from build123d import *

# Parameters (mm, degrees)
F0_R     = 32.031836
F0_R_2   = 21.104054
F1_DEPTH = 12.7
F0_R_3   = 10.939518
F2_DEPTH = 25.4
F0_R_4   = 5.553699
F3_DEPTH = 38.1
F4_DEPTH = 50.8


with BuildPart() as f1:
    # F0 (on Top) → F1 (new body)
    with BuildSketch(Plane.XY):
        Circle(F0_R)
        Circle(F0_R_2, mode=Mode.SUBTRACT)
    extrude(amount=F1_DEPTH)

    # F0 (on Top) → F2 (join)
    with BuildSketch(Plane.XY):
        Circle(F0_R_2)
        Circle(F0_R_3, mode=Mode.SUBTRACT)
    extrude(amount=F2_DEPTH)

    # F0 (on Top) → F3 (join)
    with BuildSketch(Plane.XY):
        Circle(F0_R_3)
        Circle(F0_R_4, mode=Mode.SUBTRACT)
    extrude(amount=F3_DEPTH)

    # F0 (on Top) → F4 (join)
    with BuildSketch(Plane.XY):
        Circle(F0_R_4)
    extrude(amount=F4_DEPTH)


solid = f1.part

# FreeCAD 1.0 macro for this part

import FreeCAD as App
import Part
import Sketcher
Q = App.Units.Quantity

doc = App.newDocument("Part")
body = doc.addObject("PartDesign::Body", "Body")

# Sketch on XY plane
sketch1 = doc.addObject("Sketcher::SketchObject", "Sketch")
body.addObject(sketch1)
sketch1.AttachmentSupport = (doc.XY_Plane, [""])
sketch1.MapMode = "FlatFace"
sketch1.addGeometry(Part.Circle(App.Vector(0, 0, 0), App.Vector(0, 0, 1), 32), False)
sketch1.addGeometry(Part.Circle(App.Vector(0, 0, 0), App.Vector(0, 0, 1), 21), False)
sketch1.addConstraint(Sketcher.Constraint("Coincident", 0, 3, -1, 1))
sketch1.addConstraint(Sketcher.Constraint("Coincident", 1, 3, -1, 1))
sketch1.addConstraint(Sketcher.Constraint("Diameter", 0, 64.063672))
sketch1.addConstraint(Sketcher.Constraint("Diameter", 1, 42.208108))
pad1 = doc.addObject("PartDesign::Pad", "Pad")
body.addObject(pad1)
pad1.Profile = sketch1
pad1.Length = Q("0.5 in")

# Sketch on XY plane
sketch2 = doc.addObject("Sketcher::SketchObject", "Sketch001")
body.addObject(sketch2)
sketch2.AttachmentSupport = (doc.XY_Plane, [""])
sketch2.MapMode = "FlatFace"
sketch2.addGeometry(Part.Circle(App.Vector(0, 0, 0), App.Vector(0, 0, 1), 21), False)
sketch2.addGeometry(Part.Circle(App.Vector(0, 0, 0), App.Vector(0, 0, 1), 11), False)
sketch2.addConstraint(Sketcher.Constraint("Coincident", 0, 3, -1, 1))
sketch2.addConstraint(Sketcher.Constraint("Coincident", 1, 3, -1, 1))
sketch2.addConstraint(Sketcher.Constraint("Diameter", 0, 42.208108))
sketch2.addConstraint(Sketcher.Constraint("Diameter", 1, 21.879036))
pad2 = doc.addObject("PartDesign::Pad", "Pad001")
body.addObject(pad2)
pad2.Profile = sketch2
pad2.Length = Q("1 in")

# Sketch on XY plane
sketch3 = doc.addObject("Sketcher::SketchObject", "Sketch002")
body.addObject(sketch3)
sketch3.AttachmentSupport = (doc.XY_Plane, [""])
sketch3.MapMode = "FlatFace"
sketch3.addGeometry(Part.Circle(App.Vector(0, 0, 0), App.Vector(0, 0, 1), 11), False)
sketch3.addGeometry(Part.Circle(App.Vector(0, 0, 0), App.Vector(0, 0, 1), 6), False)
sketch3.addConstraint(Sketcher.Constraint("Coincident", 0, 3, -1, 1))
sketch3.addConstraint(Sketcher.Constraint("Coincident", 1, 3, -1, 1))
sketch3.addConstraint(Sketcher.Constraint("Diameter", 0, 21.879036))
sketch3.addConstraint(Sketcher.Constraint("Diameter", 1, 11.107398))
pad3 = doc.addObject("PartDesign::Pad", "Pad002")
body.addObject(pad3)
pad3.Profile = sketch3
pad3.Length = Q("1.5 in")

# Sketch on XY plane
sketch4 = doc.addObject("Sketcher::SketchObject", "Sketch003")
body.addObject(sketch4)
sketch4.AttachmentSupport = (doc.XY_Plane, [""])
sketch4.MapMode = "FlatFace"
sketch4.addGeometry(Part.Circle(App.Vector(0, 0, 0), App.Vector(0, 0, 1), 6), False)
sketch4.addConstraint(Sketcher.Constraint("Coincident", 0, 3, -1, 1))
sketch4.addConstraint(Sketcher.Constraint("Diameter", 0, 11.107398))
pad4 = doc.addObject("PartDesign::Pad", "Pad003")
body.addObject(pad4)
pad4.Profile = sketch4
pad4.Length = Q("2 in")

doc.recompute()
